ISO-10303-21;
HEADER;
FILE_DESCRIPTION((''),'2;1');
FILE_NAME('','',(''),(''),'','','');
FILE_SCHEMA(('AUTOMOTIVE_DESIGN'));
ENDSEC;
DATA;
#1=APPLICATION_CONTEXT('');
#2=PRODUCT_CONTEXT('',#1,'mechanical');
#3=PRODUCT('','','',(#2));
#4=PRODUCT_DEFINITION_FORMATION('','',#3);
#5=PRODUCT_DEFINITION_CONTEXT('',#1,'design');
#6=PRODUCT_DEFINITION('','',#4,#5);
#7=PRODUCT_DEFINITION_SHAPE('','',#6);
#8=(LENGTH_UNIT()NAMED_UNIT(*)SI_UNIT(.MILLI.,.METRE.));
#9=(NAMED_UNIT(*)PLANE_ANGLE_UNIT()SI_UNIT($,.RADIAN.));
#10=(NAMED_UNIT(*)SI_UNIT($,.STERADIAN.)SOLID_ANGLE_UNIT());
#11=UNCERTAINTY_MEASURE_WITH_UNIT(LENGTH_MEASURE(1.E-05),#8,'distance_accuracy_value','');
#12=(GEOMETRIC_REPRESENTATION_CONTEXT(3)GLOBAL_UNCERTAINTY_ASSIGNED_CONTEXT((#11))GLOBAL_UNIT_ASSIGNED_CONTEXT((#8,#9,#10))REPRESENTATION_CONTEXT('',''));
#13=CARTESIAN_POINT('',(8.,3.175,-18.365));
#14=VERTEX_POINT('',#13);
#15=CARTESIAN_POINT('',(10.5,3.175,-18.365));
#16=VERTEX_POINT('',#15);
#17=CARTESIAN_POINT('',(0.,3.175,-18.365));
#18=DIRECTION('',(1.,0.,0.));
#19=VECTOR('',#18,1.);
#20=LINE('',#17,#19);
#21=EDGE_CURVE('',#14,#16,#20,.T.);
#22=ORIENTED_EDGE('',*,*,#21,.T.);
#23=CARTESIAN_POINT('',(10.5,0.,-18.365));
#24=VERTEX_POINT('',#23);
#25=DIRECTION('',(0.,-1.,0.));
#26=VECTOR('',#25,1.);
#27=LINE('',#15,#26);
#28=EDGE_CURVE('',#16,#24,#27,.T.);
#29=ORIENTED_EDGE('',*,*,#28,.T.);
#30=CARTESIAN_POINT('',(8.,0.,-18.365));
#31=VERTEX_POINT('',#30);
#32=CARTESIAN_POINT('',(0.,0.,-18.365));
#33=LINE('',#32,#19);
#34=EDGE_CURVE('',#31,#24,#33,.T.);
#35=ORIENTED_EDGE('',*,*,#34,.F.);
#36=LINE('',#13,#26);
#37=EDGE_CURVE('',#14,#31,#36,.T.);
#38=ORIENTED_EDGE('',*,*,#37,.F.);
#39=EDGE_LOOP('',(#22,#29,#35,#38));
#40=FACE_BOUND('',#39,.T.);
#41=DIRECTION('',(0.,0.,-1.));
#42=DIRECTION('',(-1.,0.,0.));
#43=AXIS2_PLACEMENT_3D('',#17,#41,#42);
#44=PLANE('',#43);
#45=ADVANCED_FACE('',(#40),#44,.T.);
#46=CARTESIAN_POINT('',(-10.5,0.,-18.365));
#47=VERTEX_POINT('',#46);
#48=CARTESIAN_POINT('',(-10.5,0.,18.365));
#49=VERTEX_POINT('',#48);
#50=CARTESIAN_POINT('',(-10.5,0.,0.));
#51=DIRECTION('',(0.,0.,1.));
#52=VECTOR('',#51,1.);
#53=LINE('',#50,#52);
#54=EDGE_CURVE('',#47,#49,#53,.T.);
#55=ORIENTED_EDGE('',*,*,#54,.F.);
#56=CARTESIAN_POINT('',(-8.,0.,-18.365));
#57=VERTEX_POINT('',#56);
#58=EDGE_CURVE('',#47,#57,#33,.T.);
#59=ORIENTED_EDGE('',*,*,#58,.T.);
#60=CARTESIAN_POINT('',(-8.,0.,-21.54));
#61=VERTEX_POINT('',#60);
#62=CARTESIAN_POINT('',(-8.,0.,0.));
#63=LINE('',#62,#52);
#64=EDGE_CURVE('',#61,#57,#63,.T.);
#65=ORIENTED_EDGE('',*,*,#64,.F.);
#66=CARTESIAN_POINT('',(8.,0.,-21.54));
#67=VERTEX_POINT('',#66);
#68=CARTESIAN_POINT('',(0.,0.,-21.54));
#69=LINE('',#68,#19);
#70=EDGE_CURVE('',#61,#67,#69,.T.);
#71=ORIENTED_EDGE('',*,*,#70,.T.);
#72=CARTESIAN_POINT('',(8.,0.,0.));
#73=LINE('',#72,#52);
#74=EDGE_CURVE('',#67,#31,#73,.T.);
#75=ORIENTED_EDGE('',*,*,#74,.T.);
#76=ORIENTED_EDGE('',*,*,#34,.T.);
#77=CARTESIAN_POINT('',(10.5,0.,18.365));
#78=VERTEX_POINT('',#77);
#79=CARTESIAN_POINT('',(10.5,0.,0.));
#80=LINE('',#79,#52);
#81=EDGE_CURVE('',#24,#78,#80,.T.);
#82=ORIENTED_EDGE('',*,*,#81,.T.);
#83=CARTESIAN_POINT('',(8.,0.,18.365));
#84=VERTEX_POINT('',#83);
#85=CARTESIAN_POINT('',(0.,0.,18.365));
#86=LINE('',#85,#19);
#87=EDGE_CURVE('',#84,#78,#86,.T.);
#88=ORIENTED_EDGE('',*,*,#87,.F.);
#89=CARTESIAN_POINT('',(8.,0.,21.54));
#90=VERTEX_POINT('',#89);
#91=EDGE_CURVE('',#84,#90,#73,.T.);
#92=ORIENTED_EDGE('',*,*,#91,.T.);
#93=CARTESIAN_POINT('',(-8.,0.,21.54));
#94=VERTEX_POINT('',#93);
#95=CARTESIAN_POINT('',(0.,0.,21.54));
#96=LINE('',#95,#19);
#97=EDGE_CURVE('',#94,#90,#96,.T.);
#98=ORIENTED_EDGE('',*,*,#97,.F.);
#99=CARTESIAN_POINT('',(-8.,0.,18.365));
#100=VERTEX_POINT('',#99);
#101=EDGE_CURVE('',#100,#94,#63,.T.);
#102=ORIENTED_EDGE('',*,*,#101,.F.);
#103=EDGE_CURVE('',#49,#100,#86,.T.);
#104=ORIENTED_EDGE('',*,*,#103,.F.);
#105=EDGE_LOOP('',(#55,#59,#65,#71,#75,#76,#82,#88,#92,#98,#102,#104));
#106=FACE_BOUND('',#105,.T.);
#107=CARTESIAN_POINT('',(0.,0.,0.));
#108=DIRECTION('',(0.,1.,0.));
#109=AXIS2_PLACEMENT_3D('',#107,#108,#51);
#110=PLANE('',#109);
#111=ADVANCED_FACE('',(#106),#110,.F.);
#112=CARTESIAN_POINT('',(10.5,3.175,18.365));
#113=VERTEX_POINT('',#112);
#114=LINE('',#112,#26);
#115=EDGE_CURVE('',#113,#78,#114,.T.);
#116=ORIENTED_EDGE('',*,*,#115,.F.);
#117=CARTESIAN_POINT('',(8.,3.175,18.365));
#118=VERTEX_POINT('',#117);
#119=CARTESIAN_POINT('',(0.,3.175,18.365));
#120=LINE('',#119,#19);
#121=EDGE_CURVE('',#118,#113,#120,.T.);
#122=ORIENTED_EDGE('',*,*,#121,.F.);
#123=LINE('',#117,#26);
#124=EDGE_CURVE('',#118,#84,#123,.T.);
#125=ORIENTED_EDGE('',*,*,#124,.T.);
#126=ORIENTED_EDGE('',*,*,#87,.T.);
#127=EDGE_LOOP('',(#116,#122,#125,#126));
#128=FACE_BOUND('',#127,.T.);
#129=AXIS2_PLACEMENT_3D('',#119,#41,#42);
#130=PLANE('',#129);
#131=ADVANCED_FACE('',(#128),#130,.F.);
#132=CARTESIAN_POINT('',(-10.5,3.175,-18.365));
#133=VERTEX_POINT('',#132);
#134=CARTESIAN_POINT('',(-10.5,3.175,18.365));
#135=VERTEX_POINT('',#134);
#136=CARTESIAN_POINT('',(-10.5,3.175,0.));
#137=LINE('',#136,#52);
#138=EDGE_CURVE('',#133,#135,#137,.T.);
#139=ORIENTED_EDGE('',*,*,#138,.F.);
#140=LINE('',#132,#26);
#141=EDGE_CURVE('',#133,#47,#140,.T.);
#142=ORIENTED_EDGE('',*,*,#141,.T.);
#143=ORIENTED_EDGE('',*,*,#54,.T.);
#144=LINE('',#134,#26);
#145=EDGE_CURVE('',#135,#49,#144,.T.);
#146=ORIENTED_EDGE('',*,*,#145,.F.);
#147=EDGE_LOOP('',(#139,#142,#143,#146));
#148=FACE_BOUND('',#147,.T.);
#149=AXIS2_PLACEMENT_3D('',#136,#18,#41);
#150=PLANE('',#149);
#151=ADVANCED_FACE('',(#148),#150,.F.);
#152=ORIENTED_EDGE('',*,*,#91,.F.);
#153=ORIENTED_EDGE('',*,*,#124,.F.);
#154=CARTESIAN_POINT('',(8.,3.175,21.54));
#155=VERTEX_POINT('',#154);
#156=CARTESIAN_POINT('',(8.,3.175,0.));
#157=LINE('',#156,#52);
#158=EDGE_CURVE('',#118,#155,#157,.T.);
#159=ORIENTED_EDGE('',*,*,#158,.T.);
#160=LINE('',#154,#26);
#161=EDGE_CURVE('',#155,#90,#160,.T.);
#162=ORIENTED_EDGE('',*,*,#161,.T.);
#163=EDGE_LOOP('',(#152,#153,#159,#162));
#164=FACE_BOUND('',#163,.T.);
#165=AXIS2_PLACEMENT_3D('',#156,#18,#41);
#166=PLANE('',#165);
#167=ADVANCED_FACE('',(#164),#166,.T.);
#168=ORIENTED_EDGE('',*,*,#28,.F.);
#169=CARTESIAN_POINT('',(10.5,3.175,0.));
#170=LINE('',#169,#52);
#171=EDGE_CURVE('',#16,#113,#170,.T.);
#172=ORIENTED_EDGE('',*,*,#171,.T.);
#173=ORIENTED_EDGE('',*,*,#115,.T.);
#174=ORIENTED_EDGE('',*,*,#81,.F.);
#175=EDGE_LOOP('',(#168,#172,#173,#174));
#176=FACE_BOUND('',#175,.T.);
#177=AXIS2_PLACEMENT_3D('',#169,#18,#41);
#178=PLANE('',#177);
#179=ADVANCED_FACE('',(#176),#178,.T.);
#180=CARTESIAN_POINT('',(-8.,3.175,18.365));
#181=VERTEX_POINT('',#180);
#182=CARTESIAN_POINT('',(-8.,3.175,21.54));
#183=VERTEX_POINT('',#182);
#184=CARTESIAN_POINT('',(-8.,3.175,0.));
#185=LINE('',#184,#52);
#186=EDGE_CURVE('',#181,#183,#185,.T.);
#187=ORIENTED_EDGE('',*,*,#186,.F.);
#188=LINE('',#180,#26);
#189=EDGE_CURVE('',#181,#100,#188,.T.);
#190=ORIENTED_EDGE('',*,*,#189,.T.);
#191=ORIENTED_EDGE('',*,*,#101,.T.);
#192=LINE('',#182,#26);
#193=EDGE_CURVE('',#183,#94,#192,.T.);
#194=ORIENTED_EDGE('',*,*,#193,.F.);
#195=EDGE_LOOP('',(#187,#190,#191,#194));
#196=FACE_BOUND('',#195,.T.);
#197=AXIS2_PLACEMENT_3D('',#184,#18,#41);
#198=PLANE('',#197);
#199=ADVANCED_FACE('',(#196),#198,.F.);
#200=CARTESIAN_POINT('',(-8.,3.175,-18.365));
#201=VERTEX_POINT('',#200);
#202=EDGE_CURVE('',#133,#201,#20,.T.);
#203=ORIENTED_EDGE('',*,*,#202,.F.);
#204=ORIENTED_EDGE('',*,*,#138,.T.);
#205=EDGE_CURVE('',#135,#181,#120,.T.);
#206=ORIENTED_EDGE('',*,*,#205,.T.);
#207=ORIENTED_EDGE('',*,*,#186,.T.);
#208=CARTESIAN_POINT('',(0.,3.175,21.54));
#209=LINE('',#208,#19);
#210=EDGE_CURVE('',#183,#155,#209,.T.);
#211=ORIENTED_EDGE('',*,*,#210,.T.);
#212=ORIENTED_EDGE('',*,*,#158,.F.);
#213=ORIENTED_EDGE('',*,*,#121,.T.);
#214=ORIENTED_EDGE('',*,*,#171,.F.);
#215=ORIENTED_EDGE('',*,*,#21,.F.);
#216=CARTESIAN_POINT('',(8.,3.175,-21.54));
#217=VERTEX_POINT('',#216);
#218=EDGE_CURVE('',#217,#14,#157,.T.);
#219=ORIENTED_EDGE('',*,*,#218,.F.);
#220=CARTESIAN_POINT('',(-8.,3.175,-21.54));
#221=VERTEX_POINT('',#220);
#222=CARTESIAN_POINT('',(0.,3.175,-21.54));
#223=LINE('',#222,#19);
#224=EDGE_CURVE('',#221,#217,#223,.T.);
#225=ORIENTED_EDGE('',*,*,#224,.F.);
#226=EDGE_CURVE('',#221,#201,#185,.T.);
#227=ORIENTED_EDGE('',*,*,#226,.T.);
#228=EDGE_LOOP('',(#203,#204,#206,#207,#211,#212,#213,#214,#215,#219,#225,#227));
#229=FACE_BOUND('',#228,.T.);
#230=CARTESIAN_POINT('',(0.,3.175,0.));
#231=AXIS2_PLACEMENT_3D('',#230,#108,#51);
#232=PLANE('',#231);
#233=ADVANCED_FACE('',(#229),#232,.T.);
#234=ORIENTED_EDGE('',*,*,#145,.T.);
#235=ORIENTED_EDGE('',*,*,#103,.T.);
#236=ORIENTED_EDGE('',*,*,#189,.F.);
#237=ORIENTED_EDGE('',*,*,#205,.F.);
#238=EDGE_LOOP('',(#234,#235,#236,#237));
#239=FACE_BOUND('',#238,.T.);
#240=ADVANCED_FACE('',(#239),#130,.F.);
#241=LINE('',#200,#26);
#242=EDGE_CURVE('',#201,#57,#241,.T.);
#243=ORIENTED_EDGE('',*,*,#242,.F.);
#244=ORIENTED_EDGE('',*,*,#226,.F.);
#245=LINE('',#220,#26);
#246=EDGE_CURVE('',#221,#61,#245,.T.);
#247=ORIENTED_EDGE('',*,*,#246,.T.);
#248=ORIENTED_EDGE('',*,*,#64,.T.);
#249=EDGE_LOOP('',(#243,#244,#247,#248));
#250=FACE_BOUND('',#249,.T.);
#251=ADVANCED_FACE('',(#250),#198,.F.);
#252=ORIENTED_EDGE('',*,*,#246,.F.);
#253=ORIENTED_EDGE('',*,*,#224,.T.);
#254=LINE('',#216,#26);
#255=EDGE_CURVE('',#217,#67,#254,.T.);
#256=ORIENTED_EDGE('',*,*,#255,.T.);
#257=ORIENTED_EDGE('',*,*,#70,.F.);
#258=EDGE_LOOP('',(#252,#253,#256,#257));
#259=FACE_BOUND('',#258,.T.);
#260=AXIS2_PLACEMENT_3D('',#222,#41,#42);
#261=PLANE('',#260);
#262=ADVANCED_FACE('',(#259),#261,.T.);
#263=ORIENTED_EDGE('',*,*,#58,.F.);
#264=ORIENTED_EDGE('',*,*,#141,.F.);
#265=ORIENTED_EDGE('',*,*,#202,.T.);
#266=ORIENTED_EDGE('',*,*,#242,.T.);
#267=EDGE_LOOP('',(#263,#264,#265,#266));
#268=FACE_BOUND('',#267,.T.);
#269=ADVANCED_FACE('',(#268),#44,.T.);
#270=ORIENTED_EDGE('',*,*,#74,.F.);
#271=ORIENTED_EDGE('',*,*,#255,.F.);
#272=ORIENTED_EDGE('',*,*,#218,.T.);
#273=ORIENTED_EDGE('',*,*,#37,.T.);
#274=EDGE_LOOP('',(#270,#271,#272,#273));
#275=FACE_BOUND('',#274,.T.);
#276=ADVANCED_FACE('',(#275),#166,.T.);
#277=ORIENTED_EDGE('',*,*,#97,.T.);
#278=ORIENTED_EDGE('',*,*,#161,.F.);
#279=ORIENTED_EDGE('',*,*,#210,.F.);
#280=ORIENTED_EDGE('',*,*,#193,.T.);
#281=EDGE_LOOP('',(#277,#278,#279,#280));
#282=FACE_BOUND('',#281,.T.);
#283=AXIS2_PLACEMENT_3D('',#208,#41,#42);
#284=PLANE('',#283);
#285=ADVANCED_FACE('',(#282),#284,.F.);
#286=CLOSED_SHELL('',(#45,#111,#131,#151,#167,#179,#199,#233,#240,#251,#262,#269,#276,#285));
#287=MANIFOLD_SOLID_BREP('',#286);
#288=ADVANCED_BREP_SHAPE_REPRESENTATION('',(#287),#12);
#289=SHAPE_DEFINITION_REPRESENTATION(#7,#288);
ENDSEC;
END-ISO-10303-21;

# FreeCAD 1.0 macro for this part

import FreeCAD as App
import Part
import Sketcher


def add_polygon(sketch, points):
    """Adds a closed chain of lines whose ends are joined by coincident constraints."""
    first, n = sketch.GeometryCount, len(points)
    for a, b in zip(points, points[1:] + points[:1]):
        sketch.addGeometry(Part.LineSegment(App.Vector(*a, 0), App.Vector(*b, 0)), False)
    for i in range(n):
        sketch.addConstraint(Sketcher.Constraint("Coincident", first + i, 2, first + (i + 1) % n, 1))

doc = App.newDocument("Part")
body = doc.addObject("PartDesign::Body", "Body")

# Sketch on XZ plane
sketch1 = doc.addObject("Sketcher::SketchObject", "Sketch")
body.addObject(sketch1)
sketch1.AttachmentSupport = (doc.XZ_Plane, [""])
sketch1.MapMode = "FlatFace"
add_polygon(sketch1, [(-10.5, -18.4), (-10.5, 18.4), (-8, 18.4), (-8, 21.5), (8, 21.5), (8, 18.4), (10.5, 18.4), (10.5, -18.4), (8, -18.4), (8, -21.5), (-8, -21.5), (-8, -18.4)])  # lines 0-11
sketch1.addConstraint([
    Sketcher.Constraint("Vertical", 0),
    Sketcher.Constraint("Horizontal", 1),
    Sketcher.Constraint("Vertical", 2),
    Sketcher.Constraint("Horizontal", 3),
    Sketcher.Constraint("Vertical", 4),
    Sketcher.Constraint("Horizontal", 5),
    Sketcher.Constraint("Vertical", 6),
    Sketcher.Constraint("Horizontal", 7),
    Sketcher.Constraint("Vertical", 8),
    Sketcher.Constraint("Horizontal", 9),
    Sketcher.Constraint("Vertical", 10),
    Sketcher.Constraint("Horizontal", 11),
    Sketcher.Constraint("Symmetric", 0, 2, 6, 2, -1, 1),
    Sketcher.Constraint("Symmetric", 2, 2, 8, 2, -1, 1),
    Sketcher.Constraint("Symmetric", 4, 2, 10, 2, -1, 1),
    Sketcher.Constraint("Symmetric", 1, 2, 4, 2, -2),
    Sketcher.Constraint("DistanceX", 3, 1, 3, 2, 16.0),
    Sketcher.Constraint("DistanceX", 1, 1, 1, 2, 2.5),
    Sketcher.Constraint("DistanceY", 0, 1, 0, 2, 36.73),
    Sketcher.Constraint("DistanceY", 2, 1, 2, 2, 3.175),
])
pad1 = doc.addObject("PartDesign::Pad", "Pad")
body.addObject(pad1)
pad1.Profile = sketch1
pad1.Length = 3.175
pad1.Reversed = True

doc.recompute()
